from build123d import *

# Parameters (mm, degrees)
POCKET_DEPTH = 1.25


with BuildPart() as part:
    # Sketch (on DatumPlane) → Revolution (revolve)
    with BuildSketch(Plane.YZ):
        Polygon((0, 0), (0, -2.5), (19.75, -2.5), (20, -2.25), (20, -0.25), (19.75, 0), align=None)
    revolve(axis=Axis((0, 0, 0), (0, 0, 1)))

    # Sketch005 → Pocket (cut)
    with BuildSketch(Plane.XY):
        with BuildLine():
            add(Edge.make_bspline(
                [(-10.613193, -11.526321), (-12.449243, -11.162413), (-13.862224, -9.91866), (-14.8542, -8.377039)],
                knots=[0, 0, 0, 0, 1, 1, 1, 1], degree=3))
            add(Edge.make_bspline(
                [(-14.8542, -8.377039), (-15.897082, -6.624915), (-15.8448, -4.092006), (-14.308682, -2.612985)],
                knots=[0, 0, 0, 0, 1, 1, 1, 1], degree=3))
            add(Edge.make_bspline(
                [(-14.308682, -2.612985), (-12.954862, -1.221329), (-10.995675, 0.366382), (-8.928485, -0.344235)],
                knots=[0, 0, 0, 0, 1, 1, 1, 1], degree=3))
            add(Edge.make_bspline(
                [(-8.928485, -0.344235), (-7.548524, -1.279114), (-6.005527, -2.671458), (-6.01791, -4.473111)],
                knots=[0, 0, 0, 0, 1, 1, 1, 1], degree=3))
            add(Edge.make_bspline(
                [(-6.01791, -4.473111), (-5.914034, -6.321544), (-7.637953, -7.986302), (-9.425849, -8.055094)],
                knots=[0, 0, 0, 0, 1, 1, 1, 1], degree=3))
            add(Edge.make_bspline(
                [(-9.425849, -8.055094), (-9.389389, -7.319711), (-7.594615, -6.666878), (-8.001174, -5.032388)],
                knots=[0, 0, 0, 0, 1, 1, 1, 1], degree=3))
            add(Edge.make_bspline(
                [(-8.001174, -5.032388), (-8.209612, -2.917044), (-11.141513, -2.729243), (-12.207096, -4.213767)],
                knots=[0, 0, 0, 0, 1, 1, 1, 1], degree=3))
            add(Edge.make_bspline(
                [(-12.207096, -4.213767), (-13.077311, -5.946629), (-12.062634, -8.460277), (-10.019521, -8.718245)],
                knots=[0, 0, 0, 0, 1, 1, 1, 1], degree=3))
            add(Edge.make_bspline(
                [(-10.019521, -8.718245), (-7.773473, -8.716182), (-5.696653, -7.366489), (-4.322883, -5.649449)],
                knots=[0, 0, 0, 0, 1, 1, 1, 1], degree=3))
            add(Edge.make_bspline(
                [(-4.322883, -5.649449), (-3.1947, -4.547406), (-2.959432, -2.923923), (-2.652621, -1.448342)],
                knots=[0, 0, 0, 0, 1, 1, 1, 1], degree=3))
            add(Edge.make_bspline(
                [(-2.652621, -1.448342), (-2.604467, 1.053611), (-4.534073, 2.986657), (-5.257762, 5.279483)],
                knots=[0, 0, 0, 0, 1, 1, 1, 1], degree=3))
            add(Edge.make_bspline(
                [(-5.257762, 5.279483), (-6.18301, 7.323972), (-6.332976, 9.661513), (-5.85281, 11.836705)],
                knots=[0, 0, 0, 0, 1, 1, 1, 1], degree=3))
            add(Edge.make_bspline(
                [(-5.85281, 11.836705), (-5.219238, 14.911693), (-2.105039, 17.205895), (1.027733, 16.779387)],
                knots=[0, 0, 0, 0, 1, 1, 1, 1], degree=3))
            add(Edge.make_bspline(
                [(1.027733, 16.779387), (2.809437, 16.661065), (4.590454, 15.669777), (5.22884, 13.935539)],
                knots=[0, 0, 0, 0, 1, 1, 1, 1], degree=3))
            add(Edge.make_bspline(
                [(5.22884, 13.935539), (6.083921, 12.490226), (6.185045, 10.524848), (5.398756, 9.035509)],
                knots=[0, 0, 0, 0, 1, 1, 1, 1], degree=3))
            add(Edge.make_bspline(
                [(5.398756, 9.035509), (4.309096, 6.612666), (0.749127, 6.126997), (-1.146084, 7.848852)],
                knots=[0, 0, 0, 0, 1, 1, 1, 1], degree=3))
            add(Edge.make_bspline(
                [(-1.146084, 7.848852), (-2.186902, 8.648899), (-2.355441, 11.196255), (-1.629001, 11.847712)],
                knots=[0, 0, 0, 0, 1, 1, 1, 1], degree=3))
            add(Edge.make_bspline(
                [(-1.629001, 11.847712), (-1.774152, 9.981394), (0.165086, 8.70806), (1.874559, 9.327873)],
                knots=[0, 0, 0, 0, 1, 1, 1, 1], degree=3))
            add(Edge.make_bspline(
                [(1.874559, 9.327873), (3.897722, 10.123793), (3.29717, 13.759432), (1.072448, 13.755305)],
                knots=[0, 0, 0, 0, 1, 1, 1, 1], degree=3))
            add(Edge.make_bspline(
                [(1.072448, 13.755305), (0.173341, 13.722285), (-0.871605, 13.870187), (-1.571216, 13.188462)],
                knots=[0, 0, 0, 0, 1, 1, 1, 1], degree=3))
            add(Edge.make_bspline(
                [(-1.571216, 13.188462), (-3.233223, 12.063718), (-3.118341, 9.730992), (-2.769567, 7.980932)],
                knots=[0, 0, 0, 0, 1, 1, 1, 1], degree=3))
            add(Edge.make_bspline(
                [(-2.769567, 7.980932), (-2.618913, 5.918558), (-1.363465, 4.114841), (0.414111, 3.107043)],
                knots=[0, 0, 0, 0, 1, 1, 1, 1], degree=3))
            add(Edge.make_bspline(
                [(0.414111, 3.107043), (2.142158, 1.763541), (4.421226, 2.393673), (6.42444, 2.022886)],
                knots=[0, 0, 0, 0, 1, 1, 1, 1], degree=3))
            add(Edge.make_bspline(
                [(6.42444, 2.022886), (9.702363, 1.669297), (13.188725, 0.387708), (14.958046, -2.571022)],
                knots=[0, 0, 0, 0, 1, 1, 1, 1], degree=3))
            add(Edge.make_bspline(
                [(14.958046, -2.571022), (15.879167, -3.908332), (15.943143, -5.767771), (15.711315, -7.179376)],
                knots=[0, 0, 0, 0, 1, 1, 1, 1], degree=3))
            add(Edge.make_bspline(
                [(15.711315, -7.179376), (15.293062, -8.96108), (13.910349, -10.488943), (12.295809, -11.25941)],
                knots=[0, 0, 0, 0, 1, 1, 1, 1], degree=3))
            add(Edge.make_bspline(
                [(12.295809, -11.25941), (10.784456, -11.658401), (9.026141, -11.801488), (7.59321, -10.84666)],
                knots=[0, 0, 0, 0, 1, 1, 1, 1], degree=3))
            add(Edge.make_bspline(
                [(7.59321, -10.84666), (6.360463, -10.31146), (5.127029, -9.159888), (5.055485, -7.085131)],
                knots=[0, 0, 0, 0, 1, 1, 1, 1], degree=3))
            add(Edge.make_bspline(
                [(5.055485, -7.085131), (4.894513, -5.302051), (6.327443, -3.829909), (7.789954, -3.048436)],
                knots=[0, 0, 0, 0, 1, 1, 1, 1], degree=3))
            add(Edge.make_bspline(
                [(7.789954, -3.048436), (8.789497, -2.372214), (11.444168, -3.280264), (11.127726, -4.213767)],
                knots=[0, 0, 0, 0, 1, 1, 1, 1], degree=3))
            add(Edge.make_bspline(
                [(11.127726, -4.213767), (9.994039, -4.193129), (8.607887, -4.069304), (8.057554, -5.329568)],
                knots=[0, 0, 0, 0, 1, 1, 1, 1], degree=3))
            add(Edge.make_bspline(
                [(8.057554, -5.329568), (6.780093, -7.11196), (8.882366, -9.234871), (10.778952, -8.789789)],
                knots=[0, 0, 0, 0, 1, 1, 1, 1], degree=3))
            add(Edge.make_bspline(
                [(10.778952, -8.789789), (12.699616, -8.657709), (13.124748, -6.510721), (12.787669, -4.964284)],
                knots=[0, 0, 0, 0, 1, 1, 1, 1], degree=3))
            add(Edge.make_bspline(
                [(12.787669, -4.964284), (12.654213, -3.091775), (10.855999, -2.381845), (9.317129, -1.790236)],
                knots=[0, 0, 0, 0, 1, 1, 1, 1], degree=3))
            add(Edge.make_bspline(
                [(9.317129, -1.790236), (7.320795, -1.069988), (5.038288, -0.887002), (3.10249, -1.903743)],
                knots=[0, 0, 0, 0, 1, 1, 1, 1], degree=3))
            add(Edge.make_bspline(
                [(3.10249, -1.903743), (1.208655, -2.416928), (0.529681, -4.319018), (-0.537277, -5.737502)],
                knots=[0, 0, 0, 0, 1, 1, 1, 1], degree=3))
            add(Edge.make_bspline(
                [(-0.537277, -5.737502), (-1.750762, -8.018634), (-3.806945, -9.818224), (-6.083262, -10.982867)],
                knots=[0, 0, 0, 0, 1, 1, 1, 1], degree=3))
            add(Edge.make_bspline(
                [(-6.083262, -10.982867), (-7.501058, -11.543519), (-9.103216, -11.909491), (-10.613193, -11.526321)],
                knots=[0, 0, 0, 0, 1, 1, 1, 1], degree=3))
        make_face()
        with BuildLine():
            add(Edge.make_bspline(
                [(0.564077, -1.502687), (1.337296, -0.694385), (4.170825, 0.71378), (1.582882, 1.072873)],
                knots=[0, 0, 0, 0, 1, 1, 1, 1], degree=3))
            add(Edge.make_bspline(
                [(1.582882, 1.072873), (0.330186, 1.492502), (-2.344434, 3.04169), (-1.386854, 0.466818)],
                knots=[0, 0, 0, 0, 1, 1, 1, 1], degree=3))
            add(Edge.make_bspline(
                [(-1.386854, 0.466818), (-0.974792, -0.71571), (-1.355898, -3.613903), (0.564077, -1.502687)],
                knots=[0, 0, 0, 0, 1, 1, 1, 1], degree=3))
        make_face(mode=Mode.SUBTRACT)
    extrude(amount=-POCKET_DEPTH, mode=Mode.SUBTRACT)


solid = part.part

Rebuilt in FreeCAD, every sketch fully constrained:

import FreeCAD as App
import Part
import Sketcher
Q = App.Units.Quantity


def add_polygon(sketch, points):
    """Adds a closed chain of lines whose ends are joined by coincident constraints."""
    first, n = sketch.GeometryCount, len(points)
    for a, b in zip(points, points[1:] + points[:1]):
        sketch.addGeometry(Part.LineSegment(App.Vector(*a, 0), App.Vector(*b, 0)), False)
    for i in range(n):
        sketch.addConstraint(Sketcher.Constraint("Coincident", first + i, 2, first + (i + 1) % n, 1))

doc = App.newDocument("Part")
body = doc.addObject("PartDesign::Body", "Body")

sketch1 = body.newObject("Sketcher::SketchObject", "Sketch")
sketch1.AttachmentSupport = (doc.getObject("YZ_Plane"), [""])
sketch1.MapMode = "FlatFace"
add_polygon(sketch1, [(0, 0), (0, -2.5), (19.75, -2.5), (20, -2.25), (20, -0.25), (19.75, 0)])
sketch1.addConstraint(Sketcher.Constraint("Vertical", 0))
sketch1.addConstraint(Sketcher.Constraint("Horizontal", 1))
sketch1.addConstraint(Sketcher.Constraint("Vertical", 3))
sketch1.addConstraint(Sketcher.Constraint("Horizontal", 5))
sketch1.addConstraint(Sketcher.Constraint("Coincident", 5, 2, -1, 1))
sketch1.addConstraint(Sketcher.Constraint("Perpendicular", 2, 4))
sketch1.addConstraint(Sketcher.Constraint("Vertical", 1, 2, 4, 2))
sketch1.addConstraint(Sketcher.Constraint("Equal", 2, 4))
sketch1.addConstraint(Sketcher.Constraint("DistanceY", 3, 1, 3, 2, Q("2 mm")))
sketch1.addConstraint(Sketcher.Constraint("DistanceY", 0, 2, 0, 1, Q("2.5 mm")))
sketch1.addConstraint(Sketcher.Constraint("DistanceX", -1, 1, 2, 2, Q("20 mm")))
revolution = body.newObject("PartDesign::Revolution", "Revolution")
revolution.Profile = sketch1
revolution.ReferenceAxis = (sketch1, ["V_Axis"])
revolution.Angle = 360

sketch2 = body.newObject("Sketcher::SketchObject", "Sketch001")
sketch2.AttachmentSupport = (doc.getObject("XY_Plane"), [""])
sketch2.MapMode = "FlatFace"
sketch2.addGeometry(Part.BSplineCurve([App.Vector(-10.613193, -11.526321, 0), App.Vector(-12.449243, -11.162413, 0), App.Vector(-13.862224, -9.91866, 0), App.Vector(-14.8542, -8.377039, 0)], [4, 4], [0, 1], False, 3, [1, 1, 1, 1], False), False)
sketch2.addGeometry(Part.BSplineCurve([App.Vector(-6.083262, -10.982867, 0), App.Vector(-7.501058, -11.543519, 0), App.Vector(-9.103216, -11.909491, 0), App.Vector(-10.613193, -11.526321, 0)], [4, 4], [0, 1], False, 3, [1, 1, 1, 1], False), False)
sketch2.addGeometry(Part.BSplineCurve([App.Vector(-0.537277, -5.737502, 0), App.Vector(-1.750762, -8.018634, 0), App.Vector(-3.806945, -9.818224, 0), App.Vector(-6.083262, -10.982867, 0)], [4, 4], [0, 1], False, 3, [1, 1, 1, 1], False), False)
sketch2.addGeometry(Part.BSplineCurve([App.Vector(3.10249, -1.903743, 0), App.Vector(1.208655, -2.416928, 0), App.Vector(0.529681, -4.319018, 0), App.Vector(-0.537277, -5.737502, 0)], [4, 4], [0, 1], False, 3, [1, 1, 1, 1], False), False)
sketch2.addGeometry(Part.BSplineCurve([App.Vector(9.317129, -1.790236, 0), App.Vector(7.320795, -1.069988, 0), App.Vector(5.038288, -0.887002, 0), App.Vector(3.10249, -1.903743, 0)], [4, 4], [0, 1], False, 3, [1, 1, 1, 1], False), False)
sketch2.addGeometry(Part.BSplineCurve([App.Vector(12.787669, -4.964284, 0), App.Vector(12.654213, -3.091775, 0), App.Vector(10.855999, -2.381845, 0), App.Vector(9.317129, -1.790236, 0)], [4, 4], [0, 1], False, 3, [1, 1, 1, 1], False), False)
sketch2.addGeometry(Part.BSplineCurve([App.Vector(10.778952, -8.789789, 0), App.Vector(12.699616, -8.657709, 0), App.Vector(13.124748, -6.510721, 0), App.Vector(12.787669, -4.964284, 0)], [4, 4], [0, 1], False, 3, [1, 1, 1, 1], False), False)
sketch2.addGeometry(Part.BSplineCurve([App.Vector(8.057554, -5.329568, 0), App.Vector(6.780093, -7.11196, 0), App.Vector(8.882366, -9.234871, 0), App.Vector(10.778952, -8.789789, 0)], [4, 4], [0, 1], False, 3, [1, 1, 1, 1], False), False)
sketch2.addGeometry(Part.BSplineCurve([App.Vector(11.127726, -4.213767, 0), App.Vector(9.994039, -4.193129, 0), App.Vector(8.607887, -4.069304, 0), App.Vector(8.057554, -5.329568, 0)], [4, 4], [0, 1], False, 3, [1, 1, 1, 1], False), False)
sketch2.addGeometry(Part.BSplineCurve([App.Vector(7.789954, -3.048436, 0), App.Vector(8.789497, -2.372214, 0), App.Vector(11.444168, -3.280264, 0), App.Vector(11.127726, -4.213767, 0)], [4, 4], [0, 1], False, 3, [1, 1, 1, 1], False), False)
sketch2.addGeometry(Part.BSplineCurve([App.Vector(5.055485, -7.085131, 0), App.Vector(4.894513, -5.302051, 0), App.Vector(6.327443, -3.829909, 0), App.Vector(7.789954, -3.048436, 0)], [4, 4], [0, 1], False, 3, [1, 1, 1, 1], False), False)
sketch2.addGeometry(Part.BSplineCurve([App.Vector(7.59321, -10.84666, 0), App.Vector(6.360463, -10.31146, 0), App.Vector(5.127029, -9.159888, 0), App.Vector(5.055485, -7.085131, 0)], [4, 4], [0, 1], False, 3, [1, 1, 1, 1], False), False)
sketch2.addGeometry(Part.BSplineCurve([App.Vector(12.295809, -11.25941, 0), App.Vector(10.784456, -11.658401, 0), App.Vector(9.026141, -11.801488, 0), App.Vector(7.59321, -10.84666, 0)], [4, 4], [0, 1], False, 3, [1, 1, 1, 1], False), False)
sketch2.addGeometry(Part.BSplineCurve([App.Vector(15.711315, -7.179376, 0), App.Vector(15.293062, -8.96108, 0), App.Vector(13.910349, -10.488943, 0), App.Vector(12.295809, -11.25941, 0)], [4, 4], [0, 1], False, 3, [1, 1, 1, 1], False), False)
sketch2.addGeometry(Part.BSplineCurve([App.Vector(14.958046, -2.571022, 0), App.Vector(15.879167, -3.908332, 0), App.Vector(15.943143, -5.767771, 0), App.Vector(15.711315, -7.179376, 0)], [4, 4], [0, 1], False, 3, [1, 1, 1, 1], False), False)
sketch2.addGeometry(Part.BSplineCurve([App.Vector(6.42444, 2.022886, 0), App.Vector(9.702363, 1.669297, 0), App.Vector(13.188725, 0.387708, 0), App.Vector(14.958046, -2.571022, 0)], [4, 4], [0, 1], False, 3, [1, 1, 1, 1], False), False)
sketch2.addGeometry(Part.BSplineCurve([App.Vector(0.414111, 3.107043, 0), App.Vector(2.142158, 1.763541, 0), App.Vector(4.421226, 2.393673, 0), App.Vector(6.42444, 2.022886, 0)], [4, 4], [0, 1], False, 3, [1, 1, 1, 1], False), False)
sketch2.addGeometry(Part.BSplineCurve([App.Vector(-2.769567, 7.980932, 0), App.Vector(-2.618913, 5.918558, 0), App.Vector(-1.363465, 4.114841, 0), App.Vector(0.414111, 3.107043, 0)], [4, 4], [0, 1], False, 3, [1, 1, 1, 1], False), False)
sketch2.addGeometry(Part.BSplineCurve([App.Vector(-1.571216, 13.188462, 0), App.Vector(-3.233223, 12.063718, 0), App.Vector(-3.118341, 9.730992, 0), App.Vector(-2.769567, 7.980932, 0)], [4, 4], [0, 1], False, 3, [1, 1, 1, 1], False), False)
sketch2.addGeometry(Part.BSplineCurve([App.Vector(1.072448, 13.755305, 0), App.Vector(0.173341, 13.722285, 0), App.Vector(-0.871605, 13.870187, 0), App.Vector(-1.571216, 13.188462, 0)], [4, 4], [0, 1], False, 3, [1, 1, 1, 1], False), False)
sketch2.addGeometry(Part.BSplineCurve([App.Vector(1.874559, 9.327873, 0), App.Vector(3.897722, 10.123793, 0), App.Vector(3.29717, 13.759432, 0), App.Vector(1.072448, 13.755305, 0)], [4, 4], [0, 1], False, 3, [1, 1, 1, 1], False), False)
sketch2.addGeometry(Part.BSplineCurve([App.Vector(-1.629001, 11.847712, 0), App.Vector(-1.774152, 9.981394, 0), App.Vector(0.165086, 8.70806, 0), App.Vector(1.874559, 9.327873, 0)], [4, 4], [0, 1], False, 3, [1, 1, 1, 1], False), False)
sketch2.addGeometry(Part.BSplineCurve([App.Vector(-1.146084, 7.848852, 0), App.Vector(-2.186902, 8.648899, 0), App.Vector(-2.355441, 11.196255, 0), App.Vector(-1.629001, 11.847712, 0)], [4, 4], [0, 1], False, 3, [1, 1, 1, 1], False), False)
sketch2.addGeometry(Part.BSplineCurve([App.Vector(5.398756, 9.035509, 0), App.Vector(4.309096, 6.612666, 0), App.Vector(0.749127, 6.126997, 0), App.Vector(-1.146084, 7.848852, 0)], [4, 4], [0, 1], False, 3, [1, 1, 1, 1], False), False)
sketch2.addGeometry(Part.BSplineCurve([App.Vector(5.22884, 13.935539, 0), App.Vector(6.083921, 12.490226, 0), App.Vector(6.185045, 10.524848, 0), App.Vector(5.398756, 9.035509, 0)], [4, 4], [0, 1], False, 3, [1, 1, 1, 1], False), False)
sketch2.addGeometry(Part.BSplineCurve([App.Vector(1.027733, 16.779387, 0), App.Vector(2.809437, 16.661065, 0), App.Vector(4.590454, 15.669777, 0), App.Vector(5.22884, 13.935539, 0)], [4, 4], [0, 1], False, 3, [1, 1, 1, 1], False), False)
sketch2.addGeometry(Part.BSplineCurve([App.Vector(-5.85281, 11.836705, 0), App.Vector(-5.219238, 14.911693, 0), App.Vector(-2.105039, 17.205895, 0), App.Vector(1.027733, 16.779387, 0)], [4, 4], [0, 1], False, 3, [1, 1, 1, 1], False), False)
sketch2.addGeometry(Part.BSplineCurve([App.Vector(-5.257762, 5.279483, 0), App.Vector(-6.18301, 7.323972, 0), App.Vector(-6.332976, 9.661513, 0), App.Vector(-5.85281, 11.836705, 0)], [4, 4], [0, 1], False, 3, [1, 1, 1, 1], False), False)
sketch2.addGeometry(Part.BSplineCurve([App.Vector(-2.652621, -1.448342, 0), App.Vector(-2.604467, 1.053611, 0), App.Vector(-4.534073, 2.986657, 0), App.Vector(-5.257762, 5.279483, 0)], [4, 4], [0, 1], False, 3, [1, 1, 1, 1], False), False)
sketch2.addGeometry(Part.BSplineCurve([App.Vector(-4.322883, -5.649449, 0), App.Vector(-3.1947, -4.547406, 0), App.Vector(-2.959432, -2.923923, 0), App.Vector(-2.652621, -1.448342, 0)], [4, 4], [0, 1], False, 3, [1, 1, 1, 1], False), False)
sketch2.addGeometry(Part.BSplineCurve([App.Vector(-10.019521, -8.718245, 0), App.Vector(-7.773473, -8.716182, 0), App.Vector(-5.696653, -7.366489, 0), App.Vector(-4.322883, -5.649449, 0)], [4, 4], [0, 1], False, 3, [1, 1, 1, 1], False), False)
sketch2.addGeometry(Part.BSplineCurve([App.Vector(-12.207096, -4.213767, 0), App.Vector(-13.077311, -5.946629, 0), App.Vector(-12.062634, -8.460277, 0), App.Vector(-10.019521, -8.718245, 0)], [4, 4], [0, 1], False, 3, [1, 1, 1, 1], False), False)
sketch2.addGeometry(Part.BSplineCurve([App.Vector(-8.001174, -5.032388, 0), App.Vector(-8.209612, -2.917044, 0), App.Vector(-11.141513, -2.729243, 0), App.Vector(-12.207096, -4.213767, 0)], [4, 4], [0, 1], False, 3, [1, 1, 1, 1], False), False)
sketch2.addGeometry(Part.BSplineCurve([App.Vector(-9.425849, -8.055094, 0), App.Vector(-9.389389, -7.319711, 0), App.Vector(-7.594615, -6.666878, 0), App.Vector(-8.001174, -5.032388, 0)], [4, 4], [0, 1], False, 3, [1, 1, 1, 1], False), False)
sketch2.addGeometry(Part.BSplineCurve([App.Vector(-6.01791, -4.473111, 0), App.Vector(-5.914034, -6.321544, 0), App.Vector(-7.637953, -7.986302, 0), App.Vector(-9.425849, -8.055094, 0)], [4, 4], [0, 1], False, 3, [1, 1, 1, 1], False), False)
sketch2.addGeometry(Part.BSplineCurve([App.Vector(-8.928485, -0.344235, 0), App.Vector(-7.548524, -1.279114, 0), App.Vector(-6.005527, -2.671458, 0), App.Vector(-6.01791, -4.473111, 0)], [4, 4], [0, 1], False, 3, [1, 1, 1, 1], False), False)
sketch2.addGeometry(Part.BSplineCurve([App.Vector(-14.308682, -2.612985, 0), App.Vector(-12.954862, -1.221329, 0), App.Vector(-10.995675, 0.366382, 0), App.Vector(-8.928485, -0.344235, 0)], [4, 4], [0, 1], False, 3, [1, 1, 1, 1], False), False)
sketch2.addGeometry(Part.BSplineCurve([App.Vector(-14.8542, -8.377039, 0), App.Vector(-15.897082, -6.624915, 0), App.Vector(-15.8448, -4.092006, 0), App.Vector(-14.308682, -2.612985, 0)], [4, 4], [0, 1], False, 3, [1, 1, 1, 1], False), False)
sketch2.addGeometry(Part.BSplineCurve([App.Vector(-1.386854, 0.466818, 0), App.Vector(-0.974792, -0.71571, 0), App.Vector(-1.355898, -3.613903, 0), App.Vector(0.564077, -1.502687, 0)], [4, 4], [0, 1], False, 3, [1, 1, 1, 1], False), False)
sketch2.addGeometry(Part.BSplineCurve([App.Vector(1.582882, 1.072873, 0), App.Vector(0.330186, 1.492502, 0), App.Vector(-2.344434, 3.04169, 0), App.Vector(-1.386854, 0.466818, 0)], [4, 4], [0, 1], False, 3, [1, 1, 1, 1], False), False)
sketch2.addGeometry(Part.BSplineCurve([App.Vector(0.564077, -1.502687, 0), App.Vector(1.337296, -0.694385, 0), App.Vector(4.170825, 0.71378, 0), App.Vector(1.582882, 1.072873, 0)], [4, 4], [0, 1], False, 3, [1, 1, 1, 1], False), False)
sketch2.addConstraint(Sketcher.Constraint("Block", 0))
sketch2.addConstraint(Sketcher.Constraint("Block", 1))
sketch2.addConstraint(Sketcher.Constraint("Block", 2))
sketch2.addConstraint(Sketcher.Constraint("Block", 3))
sketch2.addConstraint(Sketcher.Constraint("Block", 4))
sketch2.addConstraint(Sketcher.Constraint("Block", 5))
sketch2.addConstraint(Sketcher.Constraint("Block", 6))
sketch2.addConstraint(Sketcher.Constraint("Block", 7))
sketch2.addConstraint(Sketcher.Constraint("Block", 8))
sketch2.addConstraint(Sketcher.Constraint("Block", 9))
sketch2.addConstraint(Sketcher.Constraint("Block", 10))
sketch2.addConstraint(Sketcher.Constraint("Block", 11))
sketch2.addConstraint(Sketcher.Constraint("Block", 12))
sketch2.addConstraint(Sketcher.Constraint("Block", 13))
sketch2.addConstraint(Sketcher.Constraint("Block", 14))
sketch2.addConstraint(Sketcher.Constraint("Block", 15))
sketch2.addConstraint(Sketcher.Constraint("Block", 16))
sketch2.addConstraint(Sketcher.Constraint("Block", 17))
sketch2.addConstraint(Sketcher.Constraint("Block", 18))
sketch2.addConstraint(Sketcher.Constraint("Block", 19))
sketch2.addConstraint(Sketcher.Constraint("Block", 20))
sketch2.addConstraint(Sketcher.Constraint("Block", 21))
sketch2.addConstraint(Sketcher.Constraint("Block", 22))
sketch2.addConstraint(Sketcher.Constraint("Block", 23))
sketch2.addConstraint(Sketcher.Constraint("Block", 24))
sketch2.addConstraint(Sketcher.Constraint("Block", 25))
sketch2.addConstraint(Sketcher.Constraint("Block", 26))
sketch2.addConstraint(Sketcher.Constraint("Block", 27))
sketch2.addConstraint(Sketcher.Constraint("Block", 28))
sketch2.addConstraint(Sketcher.Constraint("Block", 29))
sketch2.addConstraint(Sketcher.Constraint("Block", 30))
sketch2.addConstraint(Sketcher.Constraint("Block", 31))
sketch2.addConstraint(Sketcher.Constraint("Block", 32))
sketch2.addConstraint(Sketcher.Constraint("Block", 33))
sketch2.addConstraint(Sketcher.Constraint("Block", 34))
sketch2.addConstraint(Sketcher.Constraint("Block", 35))
sketch2.addConstraint(Sketcher.Constraint("Block", 36))
sketch2.addConstraint(Sketcher.Constraint("Block", 37))
sketch2.addConstraint(Sketcher.Constraint("Block", 38))
sketch2.addConstraint(Sketcher.Constraint("Block", 39))
sketch2.addConstraint(Sketcher.Constraint("Block", 40))
pocket1 = body.newObject("PartDesign::Pocket", "Pocket")
pocket1.Profile = sketch2
pocket1.Length = 1.25

doc.recompute()
